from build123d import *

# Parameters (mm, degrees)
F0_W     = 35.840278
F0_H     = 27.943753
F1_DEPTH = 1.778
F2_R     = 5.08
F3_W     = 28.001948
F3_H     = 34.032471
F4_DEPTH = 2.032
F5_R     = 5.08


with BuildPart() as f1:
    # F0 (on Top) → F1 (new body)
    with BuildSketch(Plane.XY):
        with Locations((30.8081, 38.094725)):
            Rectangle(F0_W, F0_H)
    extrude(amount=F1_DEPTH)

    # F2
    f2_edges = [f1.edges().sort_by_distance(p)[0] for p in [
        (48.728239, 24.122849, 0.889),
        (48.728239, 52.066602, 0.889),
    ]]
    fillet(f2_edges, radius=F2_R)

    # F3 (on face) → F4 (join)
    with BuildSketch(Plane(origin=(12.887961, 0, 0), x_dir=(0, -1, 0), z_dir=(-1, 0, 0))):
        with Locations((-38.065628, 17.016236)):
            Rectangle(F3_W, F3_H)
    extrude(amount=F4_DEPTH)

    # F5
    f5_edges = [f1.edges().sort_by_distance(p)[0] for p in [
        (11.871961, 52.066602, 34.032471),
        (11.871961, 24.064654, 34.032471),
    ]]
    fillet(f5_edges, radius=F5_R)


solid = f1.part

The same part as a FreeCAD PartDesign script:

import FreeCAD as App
import Part
import Sketcher
from FreeCAD import Vector
Q = App.Units.Quantity


def edges_at(feature, points):
    """Names of the edges that pass closest to the given points."""
    edges = feature.Shape.Edges
    near = lambda p: min(range(len(edges)), key=lambda i: edges[i].distToShape(Part.Vertex(*p))[0])
    return sorted({f"Edge{near(p) + 1}" for p in points})

doc = App.newDocument("Part")
body = doc.addObject("PartDesign::Body", "Body")

# Sketch on XY plane
sketch1 = body.newObject("Sketcher::SketchObject", "Sketch")
sketch1.AttachmentSupport = (doc.getObject("XY_Plane"), [""])
sketch1.MapMode = "FlatFace"
sketch1.addGeometry(Part.LineSegment(Vector(13, 52, 0), Vector(13, 24, 0)), False)
sketch1.addGeometry(Part.LineSegment(Vector(13, 24, 0), Vector(49, 24, 0)), False)
sketch1.addGeometry(Part.LineSegment(Vector(49, 24, 0), Vector(49, 52, 0)), False)
sketch1.addGeometry(Part.LineSegment(Vector(49, 52, 0), Vector(13, 52, 0)), False)
sketch1.addConstraint(Sketcher.Constraint("Coincident", 0, 2, 1, 1))
sketch1.addConstraint(Sketcher.Constraint("Coincident", 1, 2, 2, 1))
sketch1.addConstraint(Sketcher.Constraint("Coincident", 2, 2, 3, 1))
sketch1.addConstraint(Sketcher.Constraint("Coincident", 3, 2, 0, 1))
sketch1.addConstraint(Sketcher.Constraint("Vertical", 0))
sketch1.addConstraint(Sketcher.Constraint("Horizontal", 1))
sketch1.addConstraint(Sketcher.Constraint("Vertical", 2))
sketch1.addConstraint(Sketcher.Constraint("Horizontal", 3))
sketch1.addConstraint(Sketcher.Constraint("DistanceX", -1, 1, 0, 2, Q("0.5074 in")))
sketch1.addConstraint(Sketcher.Constraint("DistanceY", -1, 1, 2, 2, 52.066601))
sketch1.addConstraint(Sketcher.Constraint("DistanceX", 1, 1, 1, 2, 35.840278))
sketch1.addConstraint(Sketcher.Constraint("DistanceY", 0, 2, 0, 1, 27.943753))
pad1 = body.newObject("PartDesign::Pad", "Pad")
pad1.Profile = sketch1
pad1.Length = Q("0.07 in")
doc.recompute()

fillet = body.newObject("PartDesign::Fillet", "Fillet")
fillet.Base = (pad1, edges_at(pad1, [(48.728, 24.123, 0.889), (48.728, 52.067, 0.889)]))
fillet.Radius = Q("0.2 in")

# Sketch on YZ plane
sketch2 = body.newObject("Sketcher::SketchObject", "Sketch001")
sketch2.AttachmentSupport = (doc.getObject("YZ_Plane"), [""])
sketch2.MapMode = "FlatFace"
sketch2.AttachmentOffset = App.Placement(Vector(0, 0, 0.5074 * 25.4), App.Rotation())
sketch2.addGeometry(Part.LineSegment(Vector(52, 34, 0), Vector(52, 0, 0)), False)
sketch2.addGeometry(Part.LineSegment(Vector(52, 0, 0), Vector(24, 0, 0)), False)
sketch2.addGeometry(Part.LineSegment(Vector(24, 0, 0), Vector(24, 34, 0)), False)
sketch2.addGeometry(Part.LineSegment(Vector(24, 34, 0), Vector(52, 34, 0)), False)
sketch2.addConstraint(Sketcher.Constraint("Coincident", 0, 2, 1, 1))
sketch2.addConstraint(Sketcher.Constraint("Coincident", 1, 2, 2, 1))
sketch2.addConstraint(Sketcher.Constraint("Coincident", 2, 2, 3, 1))
sketch2.addConstraint(Sketcher.Constraint("Coincident", 3, 2, 0, 1))
sketch2.addConstraint(Sketcher.Constraint("Vertical", 0))
sketch2.addConstraint(Sketcher.Constraint("Horizontal", 1))
sketch2.addConstraint(Sketcher.Constraint("Vertical", 2))
sketch2.addConstraint(Sketcher.Constraint("Horizontal", 3))
sketch2.addConstraint(Sketcher.Constraint("PointOnObject", 0, 2, -1))
sketch2.addConstraint(Sketcher.Constraint("DistanceX", 1, 2, 1, 1, 28.001948))
sketch2.addConstraint(Sketcher.Constraint("DistanceY", 0, 2, 0, 1, 34.032471))
sketch2.addConstraint(Sketcher.Constraint("DistanceX", -1, 1, 0, 2, 52.066602))
pad2 = body.newObject("PartDesign::Pad", "Pad001")
pad2.Profile = sketch2
pad2.Length = Q("0.08 in")
pad2.Reversed = True
doc.recompute()

fillet2 = body.newObject("PartDesign::Fillet", "Fillet001")
fillet2.Base = (pad2, edges_at(pad2, [(11.872, 52.067, 34.032), (11.872, 24.065, 34.032)]))
fillet2.Radius = Q("0.2 in")

doc.recompute()
